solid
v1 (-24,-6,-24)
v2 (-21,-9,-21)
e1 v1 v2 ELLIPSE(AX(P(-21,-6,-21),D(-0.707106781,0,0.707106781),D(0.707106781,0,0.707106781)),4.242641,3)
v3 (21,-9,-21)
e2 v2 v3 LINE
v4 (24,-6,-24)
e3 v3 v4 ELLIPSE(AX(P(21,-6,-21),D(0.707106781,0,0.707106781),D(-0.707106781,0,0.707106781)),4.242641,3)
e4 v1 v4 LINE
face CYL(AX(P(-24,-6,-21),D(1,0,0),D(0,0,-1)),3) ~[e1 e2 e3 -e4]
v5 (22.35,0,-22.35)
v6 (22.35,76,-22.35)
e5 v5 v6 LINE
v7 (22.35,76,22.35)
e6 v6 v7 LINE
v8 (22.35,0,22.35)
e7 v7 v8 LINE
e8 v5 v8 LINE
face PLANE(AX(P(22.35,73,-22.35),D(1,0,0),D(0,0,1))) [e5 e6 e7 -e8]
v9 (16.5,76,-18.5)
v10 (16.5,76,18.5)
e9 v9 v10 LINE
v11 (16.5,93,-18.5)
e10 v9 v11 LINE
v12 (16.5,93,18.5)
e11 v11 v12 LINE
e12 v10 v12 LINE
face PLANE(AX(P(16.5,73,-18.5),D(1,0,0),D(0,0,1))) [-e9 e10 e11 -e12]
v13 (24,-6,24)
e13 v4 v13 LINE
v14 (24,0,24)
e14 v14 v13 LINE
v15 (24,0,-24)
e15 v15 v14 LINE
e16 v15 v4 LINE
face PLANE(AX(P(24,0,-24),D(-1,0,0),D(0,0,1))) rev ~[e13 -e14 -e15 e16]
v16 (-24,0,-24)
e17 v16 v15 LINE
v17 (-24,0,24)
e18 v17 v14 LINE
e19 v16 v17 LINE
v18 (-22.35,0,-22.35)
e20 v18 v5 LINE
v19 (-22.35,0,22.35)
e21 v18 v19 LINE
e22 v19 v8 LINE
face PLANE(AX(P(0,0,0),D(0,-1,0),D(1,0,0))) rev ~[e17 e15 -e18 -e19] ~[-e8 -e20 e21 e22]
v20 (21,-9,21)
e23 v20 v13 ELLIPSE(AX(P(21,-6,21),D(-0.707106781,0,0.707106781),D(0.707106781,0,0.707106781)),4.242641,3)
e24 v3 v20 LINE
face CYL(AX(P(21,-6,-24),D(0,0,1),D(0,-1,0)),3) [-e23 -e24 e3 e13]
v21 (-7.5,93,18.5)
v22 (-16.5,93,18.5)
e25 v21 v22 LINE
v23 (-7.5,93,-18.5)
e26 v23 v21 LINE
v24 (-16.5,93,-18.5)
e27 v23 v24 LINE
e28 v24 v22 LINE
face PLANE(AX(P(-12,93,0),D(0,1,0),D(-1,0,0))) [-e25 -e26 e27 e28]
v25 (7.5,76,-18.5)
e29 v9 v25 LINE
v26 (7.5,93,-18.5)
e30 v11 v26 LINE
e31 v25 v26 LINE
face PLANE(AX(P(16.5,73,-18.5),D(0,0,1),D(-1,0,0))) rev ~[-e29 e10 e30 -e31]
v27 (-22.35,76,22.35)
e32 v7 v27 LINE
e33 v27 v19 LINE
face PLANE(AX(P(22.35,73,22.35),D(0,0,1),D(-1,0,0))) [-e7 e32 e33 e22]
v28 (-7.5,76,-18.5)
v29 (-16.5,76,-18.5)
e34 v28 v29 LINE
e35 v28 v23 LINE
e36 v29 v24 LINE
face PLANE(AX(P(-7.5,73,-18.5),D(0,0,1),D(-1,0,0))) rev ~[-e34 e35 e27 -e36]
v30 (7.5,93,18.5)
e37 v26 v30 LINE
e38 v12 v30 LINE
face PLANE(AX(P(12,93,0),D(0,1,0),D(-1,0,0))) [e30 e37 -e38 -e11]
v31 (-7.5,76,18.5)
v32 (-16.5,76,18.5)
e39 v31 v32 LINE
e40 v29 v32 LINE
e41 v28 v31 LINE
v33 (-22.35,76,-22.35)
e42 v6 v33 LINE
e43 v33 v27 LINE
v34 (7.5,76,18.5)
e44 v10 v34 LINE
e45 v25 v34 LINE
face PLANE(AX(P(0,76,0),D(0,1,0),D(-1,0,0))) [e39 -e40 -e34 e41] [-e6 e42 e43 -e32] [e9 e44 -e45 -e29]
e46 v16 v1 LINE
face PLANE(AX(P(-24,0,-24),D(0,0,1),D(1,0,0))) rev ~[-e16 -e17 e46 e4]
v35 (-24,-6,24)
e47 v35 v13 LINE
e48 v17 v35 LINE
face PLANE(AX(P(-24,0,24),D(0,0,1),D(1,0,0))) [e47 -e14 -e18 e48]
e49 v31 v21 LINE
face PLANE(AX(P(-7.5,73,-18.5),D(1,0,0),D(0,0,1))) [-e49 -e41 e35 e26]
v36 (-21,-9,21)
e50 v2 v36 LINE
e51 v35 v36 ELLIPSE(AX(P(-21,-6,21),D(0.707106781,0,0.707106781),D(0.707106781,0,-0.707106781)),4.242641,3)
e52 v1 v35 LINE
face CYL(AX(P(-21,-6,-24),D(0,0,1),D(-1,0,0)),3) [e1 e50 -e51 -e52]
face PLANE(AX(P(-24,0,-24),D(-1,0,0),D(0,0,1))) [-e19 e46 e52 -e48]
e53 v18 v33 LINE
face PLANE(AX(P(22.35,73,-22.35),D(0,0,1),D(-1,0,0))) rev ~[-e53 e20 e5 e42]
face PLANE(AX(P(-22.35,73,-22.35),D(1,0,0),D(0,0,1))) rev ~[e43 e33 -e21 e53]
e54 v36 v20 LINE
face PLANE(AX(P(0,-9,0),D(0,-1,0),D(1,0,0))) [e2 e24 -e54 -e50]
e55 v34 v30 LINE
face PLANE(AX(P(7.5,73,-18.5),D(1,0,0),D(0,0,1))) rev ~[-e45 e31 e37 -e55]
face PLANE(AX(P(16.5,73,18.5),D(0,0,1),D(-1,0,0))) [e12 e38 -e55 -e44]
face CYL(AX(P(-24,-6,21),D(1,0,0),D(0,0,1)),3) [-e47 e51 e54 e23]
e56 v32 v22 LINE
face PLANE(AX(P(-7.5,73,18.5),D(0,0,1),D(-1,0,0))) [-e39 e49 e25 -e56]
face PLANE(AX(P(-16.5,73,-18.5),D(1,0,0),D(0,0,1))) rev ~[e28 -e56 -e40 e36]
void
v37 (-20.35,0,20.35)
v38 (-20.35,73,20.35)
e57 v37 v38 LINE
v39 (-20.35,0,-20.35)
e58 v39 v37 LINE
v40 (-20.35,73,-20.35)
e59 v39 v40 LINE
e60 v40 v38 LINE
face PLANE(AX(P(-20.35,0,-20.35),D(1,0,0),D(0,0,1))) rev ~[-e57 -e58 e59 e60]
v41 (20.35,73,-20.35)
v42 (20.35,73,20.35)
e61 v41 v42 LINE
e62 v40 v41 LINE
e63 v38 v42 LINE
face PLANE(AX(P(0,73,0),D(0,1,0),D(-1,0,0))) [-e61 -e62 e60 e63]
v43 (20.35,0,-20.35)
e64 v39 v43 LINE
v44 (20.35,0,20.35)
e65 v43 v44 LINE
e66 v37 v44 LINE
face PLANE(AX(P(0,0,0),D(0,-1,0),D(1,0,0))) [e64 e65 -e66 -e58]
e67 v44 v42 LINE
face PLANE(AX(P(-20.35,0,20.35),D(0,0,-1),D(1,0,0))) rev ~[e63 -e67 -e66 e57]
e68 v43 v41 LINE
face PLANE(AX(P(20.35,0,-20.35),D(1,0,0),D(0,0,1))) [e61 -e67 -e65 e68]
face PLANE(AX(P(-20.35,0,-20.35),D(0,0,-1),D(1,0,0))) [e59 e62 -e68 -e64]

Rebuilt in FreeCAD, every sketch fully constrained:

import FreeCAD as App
import Part
import Sketcher

V = App.Vector
Q = App.Units.Quantity


def edges_at(feature, points):
    """Names of the edges that pass closest to the given points."""
    edges = feature.Shape.Edges
    near = lambda p: min(range(len(edges)), key=lambda i: edges[i].distToShape(Part.Vertex(*p))[0])
    return sorted({f"Edge{near(p) + 1}" for p in points})

doc = App.newDocument("Part")
body = doc.addObject("PartDesign::Body", "Body")

# Sketch on XZ plane
sketch1 = doc.addObject("Sketcher::SketchObject", "Sketch")
body.addObject(sketch1)
sketch1.AttachmentSupport = (doc.XZ_Plane, [""])
sketch1.MapMode = "FlatFace"
sketch1.addGeometry(Part.LineSegment(V(-22, 22, 0), V(-22, -22, 0)), False)
sketch1.addGeometry(Part.LineSegment(V(-22, -22, 0), V(22, -22, 0)), False)
sketch1.addGeometry(Part.LineSegment(V(22, -22, 0), V(22, 22, 0)), False)
sketch1.addGeometry(Part.LineSegment(V(22, 22, 0), V(-22, 22, 0)), False)
sketch1.addGeometry(Part.LineSegment(V(20, -20, 0), V(-20, -20, 0)), False)
sketch1.addGeometry(Part.LineSegment(V(-20, -20, 0), V(-20, 20, 0)), False)
sketch1.addGeometry(Part.LineSegment(V(-20, 20, 0), V(20, 20, 0)), False)
sketch1.addGeometry(Part.LineSegment(V(20, 20, 0), V(20, -20, 0)), False)
sketch1.addConstraint(Sketcher.Constraint("Coincident", 0, 2, 1, 1))
sketch1.addConstraint(Sketcher.Constraint("Coincident", 1, 2, 2, 1))
sketch1.addConstraint(Sketcher.Constraint("Coincident", 2, 2, 3, 1))
sketch1.addConstraint(Sketcher.Constraint("Coincident", 3, 2, 0, 1))
sketch1.addConstraint(Sketcher.Constraint("Coincident", 4, 2, 5, 1))
sketch1.addConstraint(Sketcher.Constraint("Coincident", 5, 2, 6, 1))
sketch1.addConstraint(Sketcher.Constraint("Coincident", 6, 2, 7, 1))
sketch1.addConstraint(Sketcher.Constraint("Coincident", 7, 2, 4, 1))
sketch1.addConstraint(Sketcher.Constraint("Vertical", 0))
sketch1.addConstraint(Sketcher.Constraint("Horizontal", 1))
sketch1.addConstraint(Sketcher.Constraint("Vertical", 2))
sketch1.addConstraint(Sketcher.Constraint("Horizontal", 3))
sketch1.addConstraint(Sketcher.Constraint("Horizontal", 4))
sketch1.addConstraint(Sketcher.Constraint("Vertical", 5))
sketch1.addConstraint(Sketcher.Constraint("Horizontal", 6))
sketch1.addConstraint(Sketcher.Constraint("Vertical", 7))
sketch1.addConstraint(Sketcher.Constraint("Symmetric", 0, 2, 2, 2, -1, 1))
sketch1.addConstraint(Sketcher.Constraint("Symmetric", 4, 2, 6, 2, -1, 1))
sketch1.addConstraint(Sketcher.Constraint("Equal", 3, 0))
sketch1.addConstraint(Sketcher.Constraint("Equal", 6, 5))
sketch1.addConstraint(Sketcher.Constraint("DistanceX", 1, 1, 1, 2, Q("44.7 mm")))
sketch1.addConstraint(Sketcher.Constraint("DistanceX", 4, 2, 4, 1, Q("40.7 mm")))
pad1 = doc.addObject("PartDesign::Pad", "Pad")
body.addObject(pad1)
pad1.Profile = sketch1
pad1.Length = 73
pad1.Reversed = True

# Sketch on XZ plane
sketch2 = doc.addObject("Sketcher::SketchObject", "Sketch001")
body.addObject(sketch2)
sketch2.AttachmentSupport = (doc.XZ_Plane, [""])
sketch2.MapMode = "FlatFace"
sketch2.AttachmentOffset = App.Placement(V(0, 0, -73), App.Rotation())
sketch2.addGeometry(Part.LineSegment(V(22, 22, 0), V(22, -22, 0)), False)
sketch2.addGeometry(Part.LineSegment(V(22, -22, 0), V(-22, -22, 0)), False)
sketch2.addGeometry(Part.LineSegment(V(-22, -22, 0), V(-22, 22, 0)), False)
sketch2.addGeometry(Part.LineSegment(V(-22, 22, 0), V(22, 22, 0)), False)
sketch2.addGeometry(Part.LineSegment(V(8, -18, 0), V(16, -18, 0)), False)
sketch2.addGeometry(Part.LineSegment(V(16, -18, 0), V(16, 18, 0)), False)
sketch2.addGeometry(Part.LineSegment(V(16, 18, 0), V(8, 18, 0)), False)
sketch2.addGeometry(Part.LineSegment(V(8, 18, 0), V(8, -18, 0)), False)
sketch2.addGeometry(Part.LineSegment(V(-16, -18, 0), V(-8, -18, 0)), False)
sketch2.addGeometry(Part.LineSegment(V(-8, -18, 0), V(-8, 18, 0)), False)
sketch2.addGeometry(Part.LineSegment(V(-8, 18, 0), V(-16, 18, 0)), False)
sketch2.addGeometry(Part.LineSegment(V(-16, 18, 0), V(-16, -18, 0)), False)
sketch2.addConstraint(Sketcher.Constraint("Coincident", 0, 2, 1, 1))
sketch2.addConstraint(Sketcher.Constraint("Coincident", 1, 2, 2, 1))
sketch2.addConstraint(Sketcher.Constraint("Coincident", 2, 2, 3, 1))
sketch2.addConstraint(Sketcher.Constraint("Coincident", 3, 2, 0, 1))
sketch2.addConstraint(Sketcher.Constraint("Coincident", 4, 2, 5, 1))
sketch2.addConstraint(Sketcher.Constraint("Coincident", 5, 2, 6, 1))
sketch2.addConstraint(Sketcher.Constraint("Coincident", 6, 2, 7, 1))
sketch2.addConstraint(Sketcher.Constraint("Coincident", 7, 2, 4, 1))
sketch2.addConstraint(Sketcher.Constraint("Coincident", 8, 2, 9, 1))
sketch2.addConstraint(Sketcher.Constraint("Coincident", 9, 2, 10, 1))
sketch2.addConstraint(Sketcher.Constraint("Coincident", 10, 2, 11, 1))
sketch2.addConstraint(Sketcher.Constraint("Coincident", 11, 2, 8, 1))
sketch2.addConstraint(Sketcher.Constraint("Vertical", 0))
sketch2.addConstraint(Sketcher.Constraint("Horizontal", 1))
sketch2.addConstraint(Sketcher.Constraint("Vertical", 2))
sketch2.addConstraint(Sketcher.Constraint("Horizontal", 3))
sketch2.addConstraint(Sketcher.Constraint("Horizontal", 4))
sketch2.addConstraint(Sketcher.Constraint("Vertical", 5))
sketch2.addConstraint(Sketcher.Constraint("Horizontal", 6))
sketch2.addConstraint(Sketcher.Constraint("Vertical", 7))
sketch2.addConstraint(Sketcher.Constraint("Horizontal", 8))
sketch2.addConstraint(Sketcher.Constraint("Vertical", 9))
sketch2.addConstraint(Sketcher.Constraint("Horizontal", 10))
sketch2.addConstraint(Sketcher.Constraint("Vertical", 11))
sketch2.addConstraint(Sketcher.Constraint("Symmetric", 0, 2, 2, 2, -1, 1))
sketch2.addConstraint(Sketcher.Constraint("Symmetric", 6, 2, 8, 2, -1, 1))
sketch2.addConstraint(Sketcher.Constraint("Symmetric", 4, 2, 10, 2, -1, 1))
sketch2.addConstraint(Sketcher.Constraint("Horizontal", 7, 2, 8, 2))
sketch2.addConstraint(Sketcher.Constraint("Equal", 3, 0))
sketch2.addConstraint(Sketcher.Constraint("DistanceX", 4, 1, 4, 2, Q("9 mm")))
sketch2.addConstraint(Sketcher.Constraint("DistanceY", 5, 1, 5, 2, Q("37 mm")))
sketch2.addConstraint(Sketcher.Constraint("DistanceX", 1, 2, 1, 1, Q("44.7 mm")))
sketch2.addConstraint(Sketcher.Constraint("DistanceX", 8, 2, 7, 2, Q("15 mm")))
pad2 = doc.addObject("PartDesign::Pad", "Pad001")
body.addObject(pad2)
pad2.Profile = sketch2
pad2.Length = 3
pad2.Reversed = True

# Sketch on XZ plane
sketch3 = doc.addObject("Sketcher::SketchObject", "Sketch002")
body.addObject(sketch3)
sketch3.AttachmentSupport = (doc.XZ_Plane, [""])
sketch3.MapMode = "FlatFace"
sketch3.AttachmentOffset = App.Placement(V(0, 0, -73), App.Rotation())
sketch3.addGeometry(Part.LineSegment(V(16, 18, 0), V(16, -18, 0)), False)
sketch3.addGeometry(Part.LineSegment(V(16, -18, 0), V(8, -18, 0)), False)
sketch3.addGeometry(Part.LineSegment(V(8, -18, 0), V(8, 18, 0)), False)
sketch3.addGeometry(Part.LineSegment(V(8, 18, 0), V(16, 18, 0)), False)
sketch3.addGeometry(Part.LineSegment(V(-8, 18, 0), V(-8, -18, 0)), False)
sketch3.addGeometry(Part.LineSegment(V(-8, -18, 0), V(-16, -18, 0)), False)
sketch3.addGeometry(Part.LineSegment(V(-16, -18, 0), V(-16, 18, 0)), False)
sketch3.addGeometry(Part.LineSegment(V(-16, 18, 0), V(-8, 18, 0)), False)
sketch3.addConstraint(Sketcher.Constraint("Coincident", 0, 2, 1, 1))
sketch3.addConstraint(Sketcher.Constraint("Coincident", 1, 2, 2, 1))
sketch3.addConstraint(Sketcher.Constraint("Coincident", 2, 2, 3, 1))
sketch3.addConstraint(Sketcher.Constraint("Coincident", 3, 2, 0, 1))
sketch3.addConstraint(Sketcher.Constraint("Coincident", 4, 2, 5, 1))
sketch3.addConstraint(Sketcher.Constraint("Coincident", 5, 2, 6, 1))
sketch3.addConstraint(Sketcher.Constraint("Coincident", 6, 2, 7, 1))
sketch3.addConstraint(Sketcher.Constraint("Coincident", 7, 2, 4, 1))
sketch3.addConstraint(Sketcher.Constraint("Vertical", 0))
sketch3.addConstraint(Sketcher.Constraint("Horizontal", 1))
sketch3.addConstraint(Sketcher.Constraint("Vertical", 2))
sketch3.addConstraint(Sketcher.Constraint("Horizontal", 3))
sketch3.addConstraint(Sketcher.Constraint("Vertical", 4))
sketch3.addConstraint(Sketcher.Constraint("Horizontal", 5))
sketch3.addConstraint(Sketcher.Constraint("Vertical", 6))
sketch3.addConstraint(Sketcher.Constraint("Horizontal", 7))
sketch3.addConstraint(Sketcher.Constraint("Symmetric", 2, 2, 4, 2, -1, 1))
sketch3.addConstraint(Sketcher.Constraint("Symmetric", 0, 2, 6, 2, -1, 1))
sketch3.addConstraint(Sketcher.Constraint("Horizontal", 1, 2, 4, 2))
sketch3.addConstraint(Sketcher.Constraint("DistanceX", 1, 2, 1, 1, Q("9 mm")))
sketch3.addConstraint(Sketcher.Constraint("DistanceY", 0, 2, 0, 1, Q("37 mm")))
sketch3.addConstraint(Sketcher.Constraint("DistanceX", 4, 2, 1, 2, Q("15 mm")))
pad3 = doc.addObject("PartDesign::Pad", "Pad002")
body.addObject(pad3)
pad3.Profile = sketch3
pad3.Length = 20
pad3.Reversed = True

# Sketch on XZ plane
sketch4 = doc.addObject("Sketcher::SketchObject", "Sketch003")
body.addObject(sketch4)
sketch4.AttachmentSupport = (doc.XZ_Plane, [""])
sketch4.MapMode = "FlatFace"
sketch4.addGeometry(Part.LineSegment(V(-24, 24, 0), V(-24, -24, 0)), False)
sketch4.addGeometry(Part.LineSegment(V(-24, -24, 0), V(24, -24, 0)), False)
sketch4.addGeometry(Part.LineSegment(V(24, -24, 0), V(24, 24, 0)), False)
sketch4.addGeometry(Part.LineSegment(V(24, 24, 0), V(-24, 24, 0)), False)
sketch4.addConstraint(Sketcher.Constraint("Coincident", 0, 2, 1, 1))
sketch4.addConstraint(Sketcher.Constraint("Coincident", 1, 2, 2, 1))
sketch4.addConstraint(Sketcher.Constraint("Coincident", 2, 2, 3, 1))
sketch4.addConstraint(Sketcher.Constraint("Coincident", 3, 2, 0, 1))
sketch4.addConstraint(Sketcher.Constraint("Vertical", 0))
sketch4.addConstraint(Sketcher.Constraint("Horizontal", 1))
sketch4.addConstraint(Sketcher.Constraint("Vertical", 2))
sketch4.addConstraint(Sketcher.Constraint("Horizontal", 3))
sketch4.addConstraint(Sketcher.Constraint("Symmetric", 0, 2, 2, 2, -1, 1))
sketch4.addConstraint(Sketcher.Constraint("Equal", 3, 0))
sketch4.addConstraint(Sketcher.Constraint("DistanceX", 1, 1, 1, 2, Q("48 mm")))
pad4 = doc.addObject("PartDesign::Pad", "Pad003")
body.addObject(pad4)
pad4.Profile = sketch4
pad4.Length = 9
doc.recompute()

fillet = doc.addObject("PartDesign::Fillet", "Fillet")
body.addObject(fillet)
fillet.Base = (pad4, edges_at(pad4, [
    (24, -9, 0),
    (0, -9, 24),
    (-24, -9, 0),
    (0, -9, -24),
]))
fillet.Radius = 3

doc.recompute()
